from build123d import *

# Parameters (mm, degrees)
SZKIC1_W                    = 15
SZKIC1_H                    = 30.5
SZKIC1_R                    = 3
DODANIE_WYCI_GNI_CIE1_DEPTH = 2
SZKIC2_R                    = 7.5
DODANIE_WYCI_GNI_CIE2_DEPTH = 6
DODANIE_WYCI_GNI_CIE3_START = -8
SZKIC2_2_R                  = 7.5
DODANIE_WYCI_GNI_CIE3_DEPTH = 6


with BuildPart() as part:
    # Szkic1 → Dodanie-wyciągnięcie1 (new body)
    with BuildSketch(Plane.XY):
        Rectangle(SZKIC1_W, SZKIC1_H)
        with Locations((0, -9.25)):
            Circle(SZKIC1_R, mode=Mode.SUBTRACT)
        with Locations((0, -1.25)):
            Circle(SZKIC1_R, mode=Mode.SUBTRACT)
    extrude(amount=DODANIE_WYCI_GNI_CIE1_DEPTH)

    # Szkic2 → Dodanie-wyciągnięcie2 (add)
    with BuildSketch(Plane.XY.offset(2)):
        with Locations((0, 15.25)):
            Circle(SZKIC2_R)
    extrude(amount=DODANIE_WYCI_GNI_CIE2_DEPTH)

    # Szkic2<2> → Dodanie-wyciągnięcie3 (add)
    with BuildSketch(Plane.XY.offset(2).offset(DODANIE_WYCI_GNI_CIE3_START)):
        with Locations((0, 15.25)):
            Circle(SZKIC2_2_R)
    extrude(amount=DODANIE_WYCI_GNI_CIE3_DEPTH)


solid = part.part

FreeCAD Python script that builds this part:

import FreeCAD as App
import Part
import Sketcher
Q = App.Units.Quantity

doc = App.newDocument("Part")
body = doc.addObject("PartDesign::Body", "Body")

# Sketch on XY plane
sketch1 = doc.addObject("Sketcher::SketchObject", "Sketch")
body.addObject(sketch1)
sketch1.AttachmentSupport = (doc.XY_Plane, [""])
sketch1.MapMode = "FlatFace"
sketch1.addGeometry([
    Part.LineSegment(App.Vector(-7.5, 15.25, 0), App.Vector(-7.5, -15.25, 0)),  # 0
    Part.LineSegment(App.Vector(-7.5, -15.25, 0), App.Vector(7.5, -15.25, 0)),  # 1
    Part.LineSegment(App.Vector(7.5, -15.25, 0), App.Vector(7.5, 15.25, 0)),  # 2
    Part.LineSegment(App.Vector(7.5, 15.25, 0), App.Vector(-7.5, 15.25, 0)),  # 3
    Part.Circle(App.Vector(0, -9.25, 0), App.Vector(0, 0, 1), 3),  # 4
    Part.Circle(App.Vector(0, -1.25, 0), App.Vector(0, 0, 1), 3),  # 5
], False)
sketch1.addConstraint([
    Sketcher.Constraint("Coincident", 0, 2, 1, 1),
    Sketcher.Constraint("Coincident", 1, 2, 2, 1),
    Sketcher.Constraint("Coincident", 2, 2, 3, 1),
    Sketcher.Constraint("Coincident", 3, 2, 0, 1),
    Sketcher.Constraint("Vertical", 0),
    Sketcher.Constraint("Horizontal", 1),
    Sketcher.Constraint("Vertical", 2),
    Sketcher.Constraint("Horizontal", 3),
    Sketcher.Constraint("Equal", 4, 5),
    Sketcher.Constraint("Symmetric", 0, 2, 2, 2, -1, 1),
    Sketcher.Constraint("PointOnObject", 4, 3, -2),
    Sketcher.Constraint("PointOnObject", 5, 3, -2),
    Sketcher.Constraint("Diameter", 4, Q("6 mm")),
    Sketcher.Constraint("DistanceX", 1, 1, 1, 2, Q("15 mm")),
    Sketcher.Constraint("DistanceY", 0, 2, 0, 1, Q("30.5 mm")),
    Sketcher.Constraint("DistanceY", 4, 3, 5, 3, Q("8 mm")),
    Sketcher.Constraint("DistanceY", 0, 2, 4, 3, Q("6 mm")),
])
pad1 = doc.addObject("PartDesign::Pad", "Pad")
body.addObject(pad1)
pad1.Profile = sketch1
pad1.Length = 2

# Sketch on XY plane
sketch2 = doc.addObject("Sketcher::SketchObject", "Sketch001")
body.addObject(sketch2)
sketch2.AttachmentSupport = (doc.XY_Plane, [""])
sketch2.MapMode = "FlatFace"
sketch2.AttachmentOffset = App.Placement(App.Vector(0, 0, 2), App.Rotation())
sketch2.addGeometry(Part.Circle(App.Vector(0, 15.25, 0), App.Vector(0, 0, 1), 7.5), False)
sketch2.addConstraint([
    Sketcher.Constraint("PointOnObject", 0, 3, -2),
    Sketcher.Constraint("Diameter", 0, Q("15 mm")),
    Sketcher.Constraint("DistanceY", -1, 1, 0, 3, Q("15.25 mm")),
])
pad2 = doc.addObject("PartDesign::Pad", "Pad001")
body.addObject(pad2)
pad2.Profile = sketch2
pad2.Length = 6

# Sketch on XY plane
sketch3 = doc.addObject("Sketcher::SketchObject", "Sketch002")
body.addObject(sketch3)
sketch3.AttachmentSupport = (doc.XY_Plane, [""])
sketch3.MapMode = "FlatFace"
sketch3.AttachmentOffset = App.Placement(App.Vector(0, 0, -6), App.Rotation())
sketch3.addGeometry(Part.Circle(App.Vector(0, 15.25, 0), App.Vector(0, 0, 1), 7.5), False)
sketch3.addConstraint([
    Sketcher.Constraint("PointOnObject", 0, 3, -2),
    Sketcher.Constraint("Diameter", 0, Q("15 mm")),
    Sketcher.Constraint("DistanceY", -1, 1, 0, 3, Q("15.25 mm")),
])
pad3 = doc.addObject("PartDesign::Pad", "Pad002")
body.addObject(pad3)
pad3.Profile = sketch3
pad3.Length = 6

doc.recompute()
